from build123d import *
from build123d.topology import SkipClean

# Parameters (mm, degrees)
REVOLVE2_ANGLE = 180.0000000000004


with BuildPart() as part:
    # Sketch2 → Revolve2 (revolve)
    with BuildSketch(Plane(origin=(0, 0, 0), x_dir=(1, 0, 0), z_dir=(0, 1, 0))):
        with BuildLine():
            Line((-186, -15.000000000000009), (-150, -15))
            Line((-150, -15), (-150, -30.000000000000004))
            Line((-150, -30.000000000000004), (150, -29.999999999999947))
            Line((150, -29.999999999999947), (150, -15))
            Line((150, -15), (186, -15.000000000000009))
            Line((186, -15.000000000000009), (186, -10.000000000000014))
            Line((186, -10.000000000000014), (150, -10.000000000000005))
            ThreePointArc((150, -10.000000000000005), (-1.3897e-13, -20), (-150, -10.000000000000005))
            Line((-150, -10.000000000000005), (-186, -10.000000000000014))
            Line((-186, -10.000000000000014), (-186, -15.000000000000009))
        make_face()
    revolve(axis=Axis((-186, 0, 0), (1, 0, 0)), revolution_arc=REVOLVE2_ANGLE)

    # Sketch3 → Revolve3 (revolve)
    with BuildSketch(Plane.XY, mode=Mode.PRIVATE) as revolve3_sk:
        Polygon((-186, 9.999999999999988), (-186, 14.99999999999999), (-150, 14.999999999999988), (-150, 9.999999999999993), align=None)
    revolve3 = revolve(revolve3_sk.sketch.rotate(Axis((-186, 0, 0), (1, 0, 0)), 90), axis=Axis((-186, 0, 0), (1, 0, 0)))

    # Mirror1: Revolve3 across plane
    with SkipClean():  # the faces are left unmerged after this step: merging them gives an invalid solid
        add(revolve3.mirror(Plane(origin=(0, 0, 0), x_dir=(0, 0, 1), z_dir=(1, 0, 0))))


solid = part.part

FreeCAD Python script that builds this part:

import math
import FreeCAD as App
import Part
import Sketcher

V = App.Vector

doc = App.newDocument("Part")
body = doc.addObject("PartDesign::Body", "Body")

sketch1 = doc.addObject("Sketcher::SketchObject", "Sketch")
body.addObject(sketch1)
sketch1.AttachmentSupport = (doc.XZ_Plane, [""])
sketch1.MapMode = "FlatFace"
sketch1.addGeometry(Part.LineSegment(V(-186, 15, 0), V(-150, 15, 0)), False)
sketch1.addGeometry(Part.LineSegment(V(-150, 15, 0), V(-150, 30, 0)), False)
sketch1.addGeometry(Part.LineSegment(V(-150, 30, 0), V(150, 30, 0)), False)
sketch1.addGeometry(Part.LineSegment(V(150, 30, 0), V(150, 15, 0)), False)
sketch1.addGeometry(Part.LineSegment(V(150, 15, 0), V(186, 15, 0)), False)
sketch1.addGeometry(Part.LineSegment(V(186, 15, 0), V(186, 10, 0)), False)
sketch1.addGeometry(Part.LineSegment(V(186, 10, 0), V(150, 10, 0)), False)
sketch1.addGeometry(Part.ArcOfCircle(Part.Circle(V(0, -1110, 0), V(0, 0, 1), 1130), math.radians(82.37), math.radians(97.63)), False)
sketch1.addGeometry(Part.LineSegment(V(-150, 10, 0), V(-186, 10, 0)), False)
sketch1.addGeometry(Part.LineSegment(V(-186, 10, 0), V(-186, 15, 0)), False)
sketch1.addConstraint(Sketcher.Constraint("Coincident", 0, 2, 1, 1))
sketch1.addConstraint(Sketcher.Constraint("Coincident", 1, 2, 2, 1))
sketch1.addConstraint(Sketcher.Constraint("Coincident", 2, 2, 3, 1))
sketch1.addConstraint(Sketcher.Constraint("Coincident", 3, 2, 4, 1))
sketch1.addConstraint(Sketcher.Constraint("Coincident", 4, 2, 5, 1))
sketch1.addConstraint(Sketcher.Constraint("Coincident", 5, 2, 6, 1))
sketch1.addConstraint(Sketcher.Constraint("Coincident", 6, 2, 7, 1))
sketch1.addConstraint(Sketcher.Constraint("Coincident", 7, 2, 8, 1))
sketch1.addConstraint(Sketcher.Constraint("Coincident", 8, 2, 9, 1))
sketch1.addConstraint(Sketcher.Constraint("Coincident", 9, 2, 0, 1))
sketch1.addConstraint(Sketcher.Constraint("Horizontal", 0))
sketch1.addConstraint(Sketcher.Constraint("Vertical", 1))
sketch1.addConstraint(Sketcher.Constraint("Horizontal", 2))
sketch1.addConstraint(Sketcher.Constraint("Vertical", 3))
sketch1.addConstraint(Sketcher.Constraint("Horizontal", 4))
sketch1.addConstraint(Sketcher.Constraint("Vertical", 5))
sketch1.addConstraint(Sketcher.Constraint("Horizontal", 6))
sketch1.addConstraint(Sketcher.Constraint("Horizontal", 8))
sketch1.addConstraint(Sketcher.Constraint("Vertical", 9))
sketch1.addConstraint(Sketcher.Constraint("Symmetric", 0, 2, 3, 2, -2))
sketch1.addConstraint(Sketcher.Constraint("Symmetric", 5, 2, 8, 2, -2))
sketch1.addConstraint(Sketcher.Constraint("PointOnObject", 7, 3, -2))
sketch1.addConstraint(Sketcher.Constraint("Vertical", 3, 2, 6, 2))
sketch1.addConstraint(Sketcher.Constraint("Radius", 7, 1130.0))
sketch1.addConstraint(Sketcher.Constraint("DistanceX", 0, 1, 0, 2, 36.0))
sketch1.addConstraint(Sketcher.Constraint("DistanceX", 2, 1, 2, 2, 300.0))
sketch1.addConstraint(Sketcher.Constraint("DistanceY", 1, 1, 1, 2, 15.0))
sketch1.addConstraint(Sketcher.Constraint("DistanceY", 5, 2, 5, 1, 5.0))
sketch1.addConstraint(Sketcher.Constraint("DistanceY", 7, 3, -1, 1, 1110.0))
revolution = doc.addObject("PartDesign::Revolution", "Revolution")
body.addObject(revolution)
revolution.Profile = sketch1
revolution.ReferenceAxis = (sketch1, ["H_Axis"])
revolution.Angle = 180

sketch2 = doc.addObject("Sketcher::SketchObject", "Sketch001")
body.addObject(sketch2)
sketch2.AttachmentSupport = (doc.XY_Plane, [""])
sketch2.MapMode = "FlatFace"
sketch2.addGeometry(Part.LineSegment(V(-186, 15, 0), V(-186, 10, 0)), False)
sketch2.addGeometry(Part.LineSegment(V(-186, 10, 0), V(-150, 10, 0)), False)
sketch2.addGeometry(Part.LineSegment(V(-150, 10, 0), V(-150, 15, 0)), False)
sketch2.addGeometry(Part.LineSegment(V(-150, 15, 0), V(-186, 15, 0)), False)
sketch2.addConstraint(Sketcher.Constraint("Coincident", 0, 2, 1, 1))
sketch2.addConstraint(Sketcher.Constraint("Coincident", 1, 2, 2, 1))
sketch2.addConstraint(Sketcher.Constraint("Coincident", 2, 2, 3, 1))
sketch2.addConstraint(Sketcher.Constraint("Coincident", 3, 2, 0, 1))
sketch2.addConstraint(Sketcher.Constraint("Vertical", 0))
sketch2.addConstraint(Sketcher.Constraint("Horizontal", 1))
sketch2.addConstraint(Sketcher.Constraint("Vertical", 2))
sketch2.addConstraint(Sketcher.Constraint("Horizontal", 3))
sketch2.addConstraint(Sketcher.Constraint("DistanceX", 1, 1, 1, 2, 36.0))
sketch2.addConstraint(Sketcher.Constraint("DistanceY", 0, 2, 0, 1, 5.0))
sketch2.addConstraint(Sketcher.Constraint("DistanceX", 0, 2, -1, 1, 186.0))
sketch2.addConstraint(Sketcher.Constraint("DistanceY", -1, 1, 0, 2, 10.0))
revolution2 = doc.addObject("PartDesign::Revolution", "Revolution001")
body.addObject(revolution2)
revolution2.Profile = sketch2
revolution2.ReferenceAxis = (sketch2, ["H_Axis"])
revolution2.Angle = 360
doc.recompute()

mirrored = doc.addObject("PartDesign::Mirrored", "Mirrored")
body.addObject(mirrored)
mirrored.Originals = [revolution2]
mirrored.MirrorPlane = (doc.YZ_Plane, [""])
body.Tip = mirrored

doc.recompute()
